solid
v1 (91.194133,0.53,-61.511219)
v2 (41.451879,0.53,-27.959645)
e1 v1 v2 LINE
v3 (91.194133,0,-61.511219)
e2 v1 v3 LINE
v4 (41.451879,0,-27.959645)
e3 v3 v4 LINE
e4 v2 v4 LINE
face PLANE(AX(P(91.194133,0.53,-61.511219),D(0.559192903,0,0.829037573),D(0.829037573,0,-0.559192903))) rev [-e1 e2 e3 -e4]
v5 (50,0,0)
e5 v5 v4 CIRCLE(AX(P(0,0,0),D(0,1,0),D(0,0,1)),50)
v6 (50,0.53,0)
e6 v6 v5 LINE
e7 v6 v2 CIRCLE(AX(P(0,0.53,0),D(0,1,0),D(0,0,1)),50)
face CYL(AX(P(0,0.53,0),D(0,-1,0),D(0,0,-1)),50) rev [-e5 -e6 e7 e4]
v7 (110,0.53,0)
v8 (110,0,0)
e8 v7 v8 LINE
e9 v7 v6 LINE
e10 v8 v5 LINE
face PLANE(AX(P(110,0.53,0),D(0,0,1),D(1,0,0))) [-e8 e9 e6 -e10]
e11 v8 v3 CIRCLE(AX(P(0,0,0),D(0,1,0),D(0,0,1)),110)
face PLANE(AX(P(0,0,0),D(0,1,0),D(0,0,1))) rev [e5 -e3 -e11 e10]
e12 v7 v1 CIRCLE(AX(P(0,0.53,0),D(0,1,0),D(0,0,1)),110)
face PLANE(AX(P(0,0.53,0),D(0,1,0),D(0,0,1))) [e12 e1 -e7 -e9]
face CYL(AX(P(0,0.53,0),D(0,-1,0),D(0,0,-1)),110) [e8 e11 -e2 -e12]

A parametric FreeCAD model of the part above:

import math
import FreeCAD as App
import Part
import Sketcher
Q = App.Units.Quantity

doc = App.newDocument("Part")
params = doc.addObject("Spreadsheet::Sheet", "Params")
for row, (alias, value) in enumerate([
    ("sketch1_radius", "50 mm"),
    ("sketch1_radius2", "110 mm"),
    ("pad1_length", "0.53 mm"),
], start=1):
    params.set(f"A{row}", alias)
    params.set(f"B{row}", "=" + value)
    params.setAlias(f"B{row}", alias)

body = doc.addObject("PartDesign::Body", "Body")

# Sketch on XZ plane
sketch1 = body.newObject("Sketcher::SketchObject", "Sketch")
sketch1.AttachmentSupport = (doc.getObject("XZ_Plane"), [""])
sketch1.MapMode = "FlatFace"
sketch1.addGeometry([
    Part.LineSegment(App.Vector(91, -62, 0), App.Vector(41, -28, 0)),
    Part.ArcOfCircle(Part.Circle(App.Vector(0, 0, 0), App.Vector(0, 0, 1), 50), math.radians(-34), math.radians(0)),
    Part.LineSegment(App.Vector(50, 0, 0), App.Vector(110, 0, 0)),
    Part.ArcOfCircle(Part.Circle(App.Vector(0, 0, 0), App.Vector(0, 0, 1), 110), math.radians(-34), math.radians(0)),
], False)
sketch1.addConstraint([
    Sketcher.Constraint("Coincident", 0, 2, 1, 1),
    Sketcher.Constraint("Coincident", 1, 2, 2, 1),
    Sketcher.Constraint("Coincident", 2, 2, 3, 2),
    Sketcher.Constraint("Coincident", 3, 1, 0, 1),
    Sketcher.Constraint("Horizontal", 2),
    Sketcher.Constraint("Coincident", 1, 3, -1, 1),
    Sketcher.Constraint("Coincident", 3, 3, -1, 1),
    Sketcher.Constraint("PointOnObject", 1, 2, -1),
    Sketcher.Constraint("Radius", 1, Q("50 mm")),
    Sketcher.Constraint("Radius", 3, Q("110 mm")),
    Sketcher.Constraint("Angle", 0, Q("146 deg")),
    Sketcher.Constraint("DistanceX", -1, 1, 0, 2, Q("41.451879 mm")),
])
sketch1.setExpression("Constraints[8]", "Params.sketch1_radius")
sketch1.setExpression("Constraints[9]", "Params.sketch1_radius2")
pad1 = body.newObject("PartDesign::Pad", "Pad")
pad1.Profile = sketch1
pad1.setExpression("Length", "Params.pad1_length")
pad1.Reversed = True

doc.recompute()
